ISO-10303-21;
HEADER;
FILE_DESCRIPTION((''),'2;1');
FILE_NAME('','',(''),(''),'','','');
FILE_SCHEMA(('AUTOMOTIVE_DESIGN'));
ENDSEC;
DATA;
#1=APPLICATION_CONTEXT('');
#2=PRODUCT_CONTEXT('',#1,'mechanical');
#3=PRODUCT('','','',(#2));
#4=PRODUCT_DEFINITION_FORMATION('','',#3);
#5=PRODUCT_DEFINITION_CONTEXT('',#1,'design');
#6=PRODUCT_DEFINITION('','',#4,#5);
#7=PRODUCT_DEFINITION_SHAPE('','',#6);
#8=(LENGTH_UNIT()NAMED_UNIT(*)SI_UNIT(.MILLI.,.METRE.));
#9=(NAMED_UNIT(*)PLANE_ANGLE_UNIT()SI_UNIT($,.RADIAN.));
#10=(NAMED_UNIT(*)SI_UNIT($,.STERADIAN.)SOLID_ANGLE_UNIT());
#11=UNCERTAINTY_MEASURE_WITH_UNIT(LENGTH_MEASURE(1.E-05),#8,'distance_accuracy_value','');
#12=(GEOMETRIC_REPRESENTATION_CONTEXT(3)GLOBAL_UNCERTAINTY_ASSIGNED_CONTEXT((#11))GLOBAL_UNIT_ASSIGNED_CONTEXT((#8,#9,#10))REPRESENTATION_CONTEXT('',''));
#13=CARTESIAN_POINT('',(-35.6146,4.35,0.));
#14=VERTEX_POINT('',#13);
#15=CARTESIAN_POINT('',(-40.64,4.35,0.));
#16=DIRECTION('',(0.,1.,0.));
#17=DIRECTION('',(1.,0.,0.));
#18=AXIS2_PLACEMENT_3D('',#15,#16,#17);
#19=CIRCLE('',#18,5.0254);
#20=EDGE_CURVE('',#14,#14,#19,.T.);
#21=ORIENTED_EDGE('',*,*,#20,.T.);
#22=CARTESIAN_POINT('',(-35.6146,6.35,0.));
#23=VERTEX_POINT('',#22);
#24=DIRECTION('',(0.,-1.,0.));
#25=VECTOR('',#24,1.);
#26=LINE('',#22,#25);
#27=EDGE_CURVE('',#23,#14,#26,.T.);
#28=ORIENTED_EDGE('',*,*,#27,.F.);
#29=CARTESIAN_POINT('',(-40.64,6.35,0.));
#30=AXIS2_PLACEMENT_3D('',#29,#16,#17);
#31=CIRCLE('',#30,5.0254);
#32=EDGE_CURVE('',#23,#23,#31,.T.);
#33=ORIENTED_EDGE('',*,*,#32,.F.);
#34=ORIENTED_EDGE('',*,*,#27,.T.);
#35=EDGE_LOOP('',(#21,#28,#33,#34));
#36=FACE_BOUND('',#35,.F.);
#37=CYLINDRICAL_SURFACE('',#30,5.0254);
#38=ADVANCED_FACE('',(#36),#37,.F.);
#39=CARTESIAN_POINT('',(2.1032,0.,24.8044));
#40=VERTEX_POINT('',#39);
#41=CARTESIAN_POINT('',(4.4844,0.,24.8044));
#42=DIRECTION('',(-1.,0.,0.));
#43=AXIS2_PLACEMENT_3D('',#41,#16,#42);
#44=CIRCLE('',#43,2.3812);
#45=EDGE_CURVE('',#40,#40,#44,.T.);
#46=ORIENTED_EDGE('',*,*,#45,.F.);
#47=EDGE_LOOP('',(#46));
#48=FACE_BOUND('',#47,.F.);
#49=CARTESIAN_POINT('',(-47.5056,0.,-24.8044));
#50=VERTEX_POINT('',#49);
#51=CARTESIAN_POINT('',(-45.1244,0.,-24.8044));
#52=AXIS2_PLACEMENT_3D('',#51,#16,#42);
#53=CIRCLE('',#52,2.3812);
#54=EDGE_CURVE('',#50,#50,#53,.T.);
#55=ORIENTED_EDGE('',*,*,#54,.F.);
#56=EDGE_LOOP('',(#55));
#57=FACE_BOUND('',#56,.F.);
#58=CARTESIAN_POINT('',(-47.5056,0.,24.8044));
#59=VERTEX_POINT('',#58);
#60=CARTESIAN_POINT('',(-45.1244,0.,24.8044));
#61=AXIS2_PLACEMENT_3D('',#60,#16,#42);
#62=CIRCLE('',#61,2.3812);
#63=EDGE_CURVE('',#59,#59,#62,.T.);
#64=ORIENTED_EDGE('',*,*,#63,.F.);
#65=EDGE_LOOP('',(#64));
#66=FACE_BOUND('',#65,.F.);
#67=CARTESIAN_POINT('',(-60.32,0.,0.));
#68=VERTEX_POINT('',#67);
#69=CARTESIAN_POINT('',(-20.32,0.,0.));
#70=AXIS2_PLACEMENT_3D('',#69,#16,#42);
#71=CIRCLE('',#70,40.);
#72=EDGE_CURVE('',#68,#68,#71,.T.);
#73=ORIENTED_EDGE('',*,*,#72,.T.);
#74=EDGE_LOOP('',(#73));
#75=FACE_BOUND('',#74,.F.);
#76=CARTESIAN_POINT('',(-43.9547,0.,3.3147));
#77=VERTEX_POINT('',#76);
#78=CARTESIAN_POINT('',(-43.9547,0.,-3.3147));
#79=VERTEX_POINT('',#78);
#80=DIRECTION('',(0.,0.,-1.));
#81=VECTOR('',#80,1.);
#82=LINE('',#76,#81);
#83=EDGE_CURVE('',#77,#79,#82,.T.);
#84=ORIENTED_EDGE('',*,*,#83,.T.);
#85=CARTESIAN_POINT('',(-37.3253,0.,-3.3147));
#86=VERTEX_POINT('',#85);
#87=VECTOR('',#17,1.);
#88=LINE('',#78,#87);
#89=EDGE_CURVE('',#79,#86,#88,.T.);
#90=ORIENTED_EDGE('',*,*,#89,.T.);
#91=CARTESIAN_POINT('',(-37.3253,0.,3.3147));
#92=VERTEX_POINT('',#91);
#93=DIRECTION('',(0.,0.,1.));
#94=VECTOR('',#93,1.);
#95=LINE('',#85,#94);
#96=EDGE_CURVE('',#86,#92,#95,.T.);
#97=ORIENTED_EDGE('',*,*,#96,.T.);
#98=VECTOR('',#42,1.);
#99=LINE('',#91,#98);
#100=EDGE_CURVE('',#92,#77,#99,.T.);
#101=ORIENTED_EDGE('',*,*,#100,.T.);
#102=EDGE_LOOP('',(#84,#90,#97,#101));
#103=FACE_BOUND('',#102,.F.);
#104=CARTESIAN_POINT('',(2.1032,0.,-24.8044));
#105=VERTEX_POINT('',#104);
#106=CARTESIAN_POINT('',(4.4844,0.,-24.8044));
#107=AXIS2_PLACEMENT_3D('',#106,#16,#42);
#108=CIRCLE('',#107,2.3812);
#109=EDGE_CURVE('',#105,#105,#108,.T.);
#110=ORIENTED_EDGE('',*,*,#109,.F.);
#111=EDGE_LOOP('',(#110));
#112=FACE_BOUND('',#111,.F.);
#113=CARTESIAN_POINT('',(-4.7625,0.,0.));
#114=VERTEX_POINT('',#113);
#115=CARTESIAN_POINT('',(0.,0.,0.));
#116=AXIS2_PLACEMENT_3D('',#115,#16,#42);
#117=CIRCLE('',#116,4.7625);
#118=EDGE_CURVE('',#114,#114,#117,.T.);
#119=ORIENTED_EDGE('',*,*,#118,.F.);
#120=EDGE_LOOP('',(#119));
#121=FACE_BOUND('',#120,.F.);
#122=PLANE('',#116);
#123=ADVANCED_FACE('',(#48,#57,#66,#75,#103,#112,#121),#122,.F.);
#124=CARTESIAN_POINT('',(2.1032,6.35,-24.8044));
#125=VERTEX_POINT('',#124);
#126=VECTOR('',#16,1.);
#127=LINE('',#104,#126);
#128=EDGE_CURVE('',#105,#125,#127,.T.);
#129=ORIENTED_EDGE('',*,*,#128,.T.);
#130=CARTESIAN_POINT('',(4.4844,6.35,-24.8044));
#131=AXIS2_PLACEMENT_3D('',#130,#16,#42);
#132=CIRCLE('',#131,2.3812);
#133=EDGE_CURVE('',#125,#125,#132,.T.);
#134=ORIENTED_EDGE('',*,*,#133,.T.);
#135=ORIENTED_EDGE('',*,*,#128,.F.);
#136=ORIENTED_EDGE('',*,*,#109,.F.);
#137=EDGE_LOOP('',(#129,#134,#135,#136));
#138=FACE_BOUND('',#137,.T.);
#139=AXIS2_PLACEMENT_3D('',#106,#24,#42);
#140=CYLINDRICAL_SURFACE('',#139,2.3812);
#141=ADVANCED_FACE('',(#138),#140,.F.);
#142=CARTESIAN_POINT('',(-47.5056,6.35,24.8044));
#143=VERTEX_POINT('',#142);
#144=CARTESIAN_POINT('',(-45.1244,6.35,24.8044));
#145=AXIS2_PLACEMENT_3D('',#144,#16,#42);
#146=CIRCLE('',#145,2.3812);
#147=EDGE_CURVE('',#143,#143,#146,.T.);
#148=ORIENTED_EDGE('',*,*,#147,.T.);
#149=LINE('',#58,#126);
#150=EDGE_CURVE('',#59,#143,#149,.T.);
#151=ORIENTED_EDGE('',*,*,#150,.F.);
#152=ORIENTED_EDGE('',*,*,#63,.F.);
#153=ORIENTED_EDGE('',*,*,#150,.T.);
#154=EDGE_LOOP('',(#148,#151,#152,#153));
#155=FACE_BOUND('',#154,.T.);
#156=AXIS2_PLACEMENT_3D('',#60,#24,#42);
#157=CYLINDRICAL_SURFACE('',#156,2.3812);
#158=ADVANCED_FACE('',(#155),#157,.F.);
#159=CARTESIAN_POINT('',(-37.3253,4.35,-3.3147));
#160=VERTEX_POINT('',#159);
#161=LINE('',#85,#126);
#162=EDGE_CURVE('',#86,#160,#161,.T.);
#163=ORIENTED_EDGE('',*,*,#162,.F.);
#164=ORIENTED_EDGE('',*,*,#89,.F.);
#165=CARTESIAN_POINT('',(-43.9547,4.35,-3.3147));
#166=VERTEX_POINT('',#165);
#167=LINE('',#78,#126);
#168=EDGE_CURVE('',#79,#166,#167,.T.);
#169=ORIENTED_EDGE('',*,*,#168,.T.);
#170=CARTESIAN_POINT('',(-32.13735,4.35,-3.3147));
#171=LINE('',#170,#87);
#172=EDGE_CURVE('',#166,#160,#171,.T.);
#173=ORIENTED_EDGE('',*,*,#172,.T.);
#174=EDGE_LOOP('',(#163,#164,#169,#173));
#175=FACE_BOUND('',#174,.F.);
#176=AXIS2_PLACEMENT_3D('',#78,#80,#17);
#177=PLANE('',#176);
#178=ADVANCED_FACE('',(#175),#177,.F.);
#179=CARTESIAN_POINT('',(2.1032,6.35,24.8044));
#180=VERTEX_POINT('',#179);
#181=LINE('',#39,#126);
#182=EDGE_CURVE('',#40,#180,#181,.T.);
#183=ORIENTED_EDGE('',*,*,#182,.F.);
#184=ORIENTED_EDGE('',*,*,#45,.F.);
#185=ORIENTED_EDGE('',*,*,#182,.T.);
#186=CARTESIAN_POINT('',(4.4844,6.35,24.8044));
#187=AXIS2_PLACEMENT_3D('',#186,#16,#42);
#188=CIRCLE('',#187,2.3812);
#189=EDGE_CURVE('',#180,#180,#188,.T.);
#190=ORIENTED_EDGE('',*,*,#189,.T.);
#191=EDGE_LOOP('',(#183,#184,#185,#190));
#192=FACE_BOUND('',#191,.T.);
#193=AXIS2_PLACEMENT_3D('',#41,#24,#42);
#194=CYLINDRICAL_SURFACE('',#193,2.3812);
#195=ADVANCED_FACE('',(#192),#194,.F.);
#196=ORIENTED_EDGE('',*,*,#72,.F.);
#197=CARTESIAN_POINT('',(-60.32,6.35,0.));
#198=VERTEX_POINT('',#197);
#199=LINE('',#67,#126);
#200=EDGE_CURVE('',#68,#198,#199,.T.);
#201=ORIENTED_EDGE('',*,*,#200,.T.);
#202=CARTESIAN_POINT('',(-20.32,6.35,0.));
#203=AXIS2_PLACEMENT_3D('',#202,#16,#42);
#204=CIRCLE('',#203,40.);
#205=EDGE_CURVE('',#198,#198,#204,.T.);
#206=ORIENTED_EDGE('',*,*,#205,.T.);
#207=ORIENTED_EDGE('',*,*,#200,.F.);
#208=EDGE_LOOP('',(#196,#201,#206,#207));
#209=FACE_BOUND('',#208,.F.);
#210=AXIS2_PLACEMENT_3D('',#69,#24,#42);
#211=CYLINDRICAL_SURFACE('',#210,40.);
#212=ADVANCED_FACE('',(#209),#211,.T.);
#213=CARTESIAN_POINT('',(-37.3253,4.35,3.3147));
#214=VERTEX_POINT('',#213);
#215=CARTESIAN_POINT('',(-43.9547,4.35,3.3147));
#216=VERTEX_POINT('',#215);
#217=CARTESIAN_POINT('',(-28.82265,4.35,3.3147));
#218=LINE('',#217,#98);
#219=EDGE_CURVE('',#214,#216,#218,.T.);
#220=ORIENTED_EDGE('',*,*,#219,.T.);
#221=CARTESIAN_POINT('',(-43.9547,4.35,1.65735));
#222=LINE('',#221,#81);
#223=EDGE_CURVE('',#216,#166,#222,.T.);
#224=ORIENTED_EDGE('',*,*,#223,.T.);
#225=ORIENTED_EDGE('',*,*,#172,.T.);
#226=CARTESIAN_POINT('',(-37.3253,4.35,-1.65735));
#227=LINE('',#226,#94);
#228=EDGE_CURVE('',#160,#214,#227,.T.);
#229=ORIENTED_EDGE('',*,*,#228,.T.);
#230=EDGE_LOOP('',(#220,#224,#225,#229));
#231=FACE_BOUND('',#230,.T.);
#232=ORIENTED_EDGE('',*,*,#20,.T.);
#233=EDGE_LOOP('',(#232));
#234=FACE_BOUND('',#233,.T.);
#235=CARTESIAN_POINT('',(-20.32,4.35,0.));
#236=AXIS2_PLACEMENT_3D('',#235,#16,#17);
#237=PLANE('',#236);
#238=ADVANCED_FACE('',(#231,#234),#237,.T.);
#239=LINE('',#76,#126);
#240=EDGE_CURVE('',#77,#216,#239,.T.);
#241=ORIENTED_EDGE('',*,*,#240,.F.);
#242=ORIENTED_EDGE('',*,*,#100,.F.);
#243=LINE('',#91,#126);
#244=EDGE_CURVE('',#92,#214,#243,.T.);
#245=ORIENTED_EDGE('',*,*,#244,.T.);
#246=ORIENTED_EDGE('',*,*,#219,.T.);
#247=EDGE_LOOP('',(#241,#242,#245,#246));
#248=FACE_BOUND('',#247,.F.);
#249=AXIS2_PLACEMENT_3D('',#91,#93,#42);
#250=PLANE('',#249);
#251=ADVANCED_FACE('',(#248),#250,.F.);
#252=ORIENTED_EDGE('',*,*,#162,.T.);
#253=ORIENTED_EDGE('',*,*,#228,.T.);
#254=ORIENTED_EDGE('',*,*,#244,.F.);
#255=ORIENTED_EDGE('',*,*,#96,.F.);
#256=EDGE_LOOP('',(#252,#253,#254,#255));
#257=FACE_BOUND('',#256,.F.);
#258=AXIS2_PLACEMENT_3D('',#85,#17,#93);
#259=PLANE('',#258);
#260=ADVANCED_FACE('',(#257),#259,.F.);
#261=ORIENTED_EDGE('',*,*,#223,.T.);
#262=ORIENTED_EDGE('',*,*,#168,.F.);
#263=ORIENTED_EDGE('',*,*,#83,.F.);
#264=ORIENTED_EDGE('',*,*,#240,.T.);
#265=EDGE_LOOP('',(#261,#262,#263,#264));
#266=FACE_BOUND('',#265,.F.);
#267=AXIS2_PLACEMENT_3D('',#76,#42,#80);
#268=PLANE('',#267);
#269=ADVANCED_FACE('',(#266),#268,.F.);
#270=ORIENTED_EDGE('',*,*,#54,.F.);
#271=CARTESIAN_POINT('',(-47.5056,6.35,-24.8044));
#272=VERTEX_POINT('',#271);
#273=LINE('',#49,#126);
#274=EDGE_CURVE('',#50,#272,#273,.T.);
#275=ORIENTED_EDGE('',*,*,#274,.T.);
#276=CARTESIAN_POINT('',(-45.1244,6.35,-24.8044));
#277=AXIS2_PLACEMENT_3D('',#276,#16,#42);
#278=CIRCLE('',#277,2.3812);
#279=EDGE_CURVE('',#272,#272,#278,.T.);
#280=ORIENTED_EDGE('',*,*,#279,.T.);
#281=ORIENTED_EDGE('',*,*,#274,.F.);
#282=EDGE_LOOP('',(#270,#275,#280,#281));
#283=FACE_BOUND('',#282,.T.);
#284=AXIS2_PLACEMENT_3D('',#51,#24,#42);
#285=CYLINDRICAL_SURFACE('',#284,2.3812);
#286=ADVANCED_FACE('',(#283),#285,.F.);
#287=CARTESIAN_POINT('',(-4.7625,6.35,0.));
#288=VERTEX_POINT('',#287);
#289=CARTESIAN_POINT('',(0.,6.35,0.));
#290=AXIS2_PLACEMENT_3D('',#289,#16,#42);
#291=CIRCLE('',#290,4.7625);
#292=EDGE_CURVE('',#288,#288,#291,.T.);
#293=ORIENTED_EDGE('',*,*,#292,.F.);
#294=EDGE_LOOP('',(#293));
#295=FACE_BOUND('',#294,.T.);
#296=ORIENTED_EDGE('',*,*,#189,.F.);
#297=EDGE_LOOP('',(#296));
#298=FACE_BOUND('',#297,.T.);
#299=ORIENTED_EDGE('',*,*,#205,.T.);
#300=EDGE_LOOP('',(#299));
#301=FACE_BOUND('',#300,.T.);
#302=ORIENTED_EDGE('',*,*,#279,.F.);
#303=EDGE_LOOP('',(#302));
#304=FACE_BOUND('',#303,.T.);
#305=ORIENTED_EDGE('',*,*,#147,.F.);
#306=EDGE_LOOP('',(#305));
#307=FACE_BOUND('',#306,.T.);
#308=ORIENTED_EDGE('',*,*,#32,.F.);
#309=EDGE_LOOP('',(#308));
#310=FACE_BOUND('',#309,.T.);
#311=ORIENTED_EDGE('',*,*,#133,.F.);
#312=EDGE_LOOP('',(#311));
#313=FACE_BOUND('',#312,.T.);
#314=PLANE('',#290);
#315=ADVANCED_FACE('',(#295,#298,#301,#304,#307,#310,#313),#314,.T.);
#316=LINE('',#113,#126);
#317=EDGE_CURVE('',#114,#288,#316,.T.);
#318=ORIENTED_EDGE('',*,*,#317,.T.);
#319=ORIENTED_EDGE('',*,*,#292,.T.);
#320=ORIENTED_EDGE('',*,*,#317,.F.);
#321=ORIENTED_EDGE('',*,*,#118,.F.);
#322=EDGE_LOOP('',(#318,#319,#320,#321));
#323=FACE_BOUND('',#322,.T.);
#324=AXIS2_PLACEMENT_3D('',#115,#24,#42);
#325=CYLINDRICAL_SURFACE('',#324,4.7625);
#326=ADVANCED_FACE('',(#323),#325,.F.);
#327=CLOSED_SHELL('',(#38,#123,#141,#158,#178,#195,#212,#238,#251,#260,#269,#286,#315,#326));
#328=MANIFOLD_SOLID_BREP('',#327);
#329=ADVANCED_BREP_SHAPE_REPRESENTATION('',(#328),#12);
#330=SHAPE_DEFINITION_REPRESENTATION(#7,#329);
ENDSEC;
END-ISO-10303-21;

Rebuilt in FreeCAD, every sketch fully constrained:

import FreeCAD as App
import Part
import Sketcher
from FreeCAD import Vector
Q = App.Units.Quantity


def add_polygon(sketch, points):
    """Adds a closed chain of lines whose ends are joined by coincident constraints."""
    first, n = sketch.GeometryCount, len(points)
    for a, b in zip(points, points[1:] + points[:1]):
        sketch.addGeometry(Part.LineSegment(App.Vector(*a, 0), App.Vector(*b, 0)), False)
    for i in range(n):
        sketch.addConstraint(Sketcher.Constraint("Coincident", first + i, 2, first + (i + 1) % n, 1))

doc = App.newDocument("Part")
params = doc.addObject("Spreadsheet::Sheet", "Params")
for row, (alias, value) in enumerate([
    ("sketch1_diameter", "0.1875 in"),
    ("sketch1_diameter2", "0.375 in"),
    ("sketch1_width", "0.261 in"),
    ("pad1_length", "0.25 in"),
    ("pocket1_length", "2 mm"),
], start=1):
    params.set(f"A{row}", alias)
    params.set(f"B{row}", "=" + value)
    params.setAlias(f"B{row}", alias)

body = doc.addObject("PartDesign::Body", "Body")

# Sketch on XZ plane
sketch1 = body.newObject("Sketcher::SketchObject", "Sketch")
sketch1.AttachmentSupport = (doc.getObject("XZ_Plane"), [""])
sketch1.MapMode = "FlatFace"
sketch1.addGeometry(Part.Circle(Vector(-20.3, 0, 0), Vector(0, 0, 1), 40), False)  # 0
sketch1.addGeometry(Part.Circle(Vector(4.5, -24.8, 0), Vector(0, 0, 1), 2.4), False)  # 1
sketch1.addGeometry(Part.Circle(Vector(-45.1, -24.8, 0), Vector(0, 0, 1), 2.4), False)  # 2
sketch1.addGeometry(Part.Circle(Vector(0, 0, 0), Vector(0, 0, 1), 4.8), False)  # 3
sketch1.addGeometry(Part.Circle(Vector(4.5, 24.8, 0), Vector(0, 0, 1), 2.4), False)  # 4
sketch1.addGeometry(Part.Circle(Vector(-45.1, 24.8, 0), Vector(0, 0, 1), 2.4), False)  # 5
add_polygon(sketch1, [(-44, -3.3), (-37.3, -3.3), (-37.3, 3.3), (-44, 3.3)])  # lines 6-9
sketch1.addConstraint([
    Sketcher.Constraint("Horizontal", 6),
    Sketcher.Constraint("Vertical", 7),
    Sketcher.Constraint("Horizontal", 8),
    Sketcher.Constraint("Vertical", 9),
    Sketcher.Constraint("Coincident", 3, 3, -1, 1),
    Sketcher.Constraint("Equal", 1, 2),
    Sketcher.Constraint("Equal", 2, 4),
    Sketcher.Constraint("Equal", 4, 5),
    Sketcher.Constraint("Symmetric", 1, 3, 4, 3, -1),
    Sketcher.Constraint("Symmetric", 2, 3, 5, 3, -1),
    Sketcher.Constraint("PointOnObject", 0, 3, -1),
    Sketcher.Constraint("Horizontal", 1, 3, 2, 3),
    Sketcher.Constraint("Equal", 8, 7),
    Sketcher.Constraint("Diameter", 1, Q("0.1875 in")),
    Sketcher.Constraint("Diameter", 3, Q("0.375 in")),
    Sketcher.Constraint("Diameter", 0, Q("3.1496 in")),
    Sketcher.Constraint("DistanceX", 6, 1, 6, 2, Q("0.261 in")),
    Sketcher.Constraint("DistanceX", 0, 3, -1, 1, Q("0.8 in")),
    Sketcher.Constraint("DistanceX", 6, 2, -1, 1, Q("1.4695 in")),
    Sketcher.Constraint("DistanceY", 6, 2, -1, 1, Q("0.1305 in")),
    Sketcher.Constraint("DistanceX", 2, 3, 1, 3, Q("1.9531 in")),
    Sketcher.Constraint("DistanceY", 1, 3, 4, 3, Q("1.9531 in")),
    Sketcher.Constraint("DistanceX", -1, 1, 1, 3, Q("4.4844 mm")),
])
sketch1.setExpression("Constraints[17]", "Params.sketch1_diameter")
sketch1.setExpression("Constraints[18]", "Params.sketch1_diameter2")
sketch1.setExpression("Constraints[20]", "Params.sketch1_width")
pad1 = body.newObject("PartDesign::Pad", "Pad")
pad1.Profile = sketch1
pad1.setExpression("Length", "Params.pad1_length")
pad1.Reversed = True

# Sketch on XZ plane
sketch2 = body.newObject("Sketcher::SketchObject", "Sketch001")
sketch2.AttachmentSupport = (doc.getObject("XZ_Plane"), [""])
sketch2.MapMode = "FlatFace"
sketch2.AttachmentOffset = App.Placement(Vector(0, 0, -0.25 * 25.4), App.Rotation())
sketch2.addGeometry(Part.Circle(Vector(-41, 0, 0), Vector(0, 0, 1), 5), False)
sketch2.addConstraint([
    Sketcher.Constraint("PointOnObject", 0, 3, -1),
    Sketcher.Constraint("Diameter", 0, Q("0.3957 in")),
    Sketcher.Constraint("DistanceX", 0, 3, -1, 1, Q("1.6 in")),
])
pocket1 = body.newObject("PartDesign::Pocket", "Pocket")
pocket1.Profile = sketch2
pocket1.setExpression("Length", "Params.pocket1_length")
pocket1.Reversed = True

doc.recompute()
